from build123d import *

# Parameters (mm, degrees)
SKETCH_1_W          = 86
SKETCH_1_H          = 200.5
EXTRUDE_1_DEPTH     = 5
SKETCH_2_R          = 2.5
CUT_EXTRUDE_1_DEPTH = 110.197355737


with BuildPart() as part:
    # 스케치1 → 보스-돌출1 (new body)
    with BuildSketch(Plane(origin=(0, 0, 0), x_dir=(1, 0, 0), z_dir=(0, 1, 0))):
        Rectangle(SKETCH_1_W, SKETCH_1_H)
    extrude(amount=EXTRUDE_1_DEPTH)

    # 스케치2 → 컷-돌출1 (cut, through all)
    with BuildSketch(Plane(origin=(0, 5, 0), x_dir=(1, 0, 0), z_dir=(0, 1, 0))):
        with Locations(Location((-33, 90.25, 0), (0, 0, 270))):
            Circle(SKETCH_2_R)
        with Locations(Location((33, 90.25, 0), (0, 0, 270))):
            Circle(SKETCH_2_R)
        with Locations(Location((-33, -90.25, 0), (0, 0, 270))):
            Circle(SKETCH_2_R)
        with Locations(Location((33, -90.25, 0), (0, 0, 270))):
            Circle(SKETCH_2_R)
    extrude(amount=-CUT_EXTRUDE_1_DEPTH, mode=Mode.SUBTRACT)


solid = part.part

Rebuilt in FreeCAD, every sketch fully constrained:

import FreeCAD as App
import Part
import Sketcher


def add_polygon(sketch, points):
    """Adds a closed chain of lines whose ends are joined by coincident constraints."""
    first, n = sketch.GeometryCount, len(points)
    for a, b in zip(points, points[1:] + points[:1]):
        sketch.addGeometry(Part.LineSegment(App.Vector(*a, 0), App.Vector(*b, 0)), False)
    for i in range(n):
        sketch.addConstraint(Sketcher.Constraint("Coincident", first + i, 2, first + (i + 1) % n, 1))

doc = App.newDocument("Part")
body = doc.addObject("PartDesign::Body", "Body")

sketch1 = body.newObject("Sketcher::SketchObject", "Sketch")
sketch1.AttachmentSupport = (doc.getObject("XZ_Plane"), [""])
sketch1.MapMode = "FlatFace"
add_polygon(sketch1, [(-43, -100), (-43, 100), (43, 100), (43, -100)])
sketch1.addConstraint(Sketcher.Constraint("Vertical", 0))
sketch1.addConstraint(Sketcher.Constraint("Horizontal", 1))
sketch1.addConstraint(Sketcher.Constraint("Vertical", 2))
sketch1.addConstraint(Sketcher.Constraint("Horizontal", 3))
sketch1.addConstraint(Sketcher.Constraint("Symmetric", 0, 2, 2, 2, -1, 1))
sketch1.addConstraint(Sketcher.Constraint("DistanceX", 1, 1, 1, 2, 86.0))
sketch1.addConstraint(Sketcher.Constraint("DistanceY", 0, 1, 0, 2, 200.5))
pad1 = body.newObject("PartDesign::Pad", "Pad")
pad1.Profile = sketch1
pad1.Length = 5
pad1.Reversed = True

sketch2 = body.newObject("Sketcher::SketchObject", "Sketch001")
sketch2.AttachmentSupport = (doc.getObject("XZ_Plane"), [""])
sketch2.MapMode = "FlatFace"
sketch2.AttachmentOffset = App.Placement(App.Vector(0, 0, -5), App.Rotation())
sketch2.addGeometry(Part.Circle(App.Vector(-33, -90.2, 0), App.Vector(0, 0, 1), 2.5), False)
sketch2.addGeometry(Part.Circle(App.Vector(33, -90.2, 0), App.Vector(0, 0, 1), 2.5), False)
sketch2.addGeometry(Part.Circle(App.Vector(-33, 90.2, 0), App.Vector(0, 0, 1), 2.5), False)
sketch2.addGeometry(Part.Circle(App.Vector(33, 90.2, 0), App.Vector(0, 0, 1), 2.5), False)
sketch2.addConstraint(Sketcher.Constraint("Equal", 0, 1))
sketch2.addConstraint(Sketcher.Constraint("Equal", 1, 2))
sketch2.addConstraint(Sketcher.Constraint("Equal", 2, 3))
sketch2.addConstraint(Sketcher.Constraint("Symmetric", 1, 3, 2, 3, -1, 1))
sketch2.addConstraint(Sketcher.Constraint("Symmetric", 0, 3, 3, 3, -1, 1))
sketch2.addConstraint(Sketcher.Constraint("Symmetric", 0, 3, 1, 3, -2))
sketch2.addConstraint(Sketcher.Constraint("Diameter", 0, 5.0))
sketch2.addConstraint(Sketcher.Constraint("DistanceX", 0, 3, -1, 1, 33.0))
sketch2.addConstraint(Sketcher.Constraint("DistanceY", 0, 3, 2, 3, 180.5))
pocket1 = body.newObject("PartDesign::Pocket", "Pocket")
pocket1.Profile = sketch2
pocket1.Type = "ThroughAll"
pocket1.Reversed = True

doc.recompute()
